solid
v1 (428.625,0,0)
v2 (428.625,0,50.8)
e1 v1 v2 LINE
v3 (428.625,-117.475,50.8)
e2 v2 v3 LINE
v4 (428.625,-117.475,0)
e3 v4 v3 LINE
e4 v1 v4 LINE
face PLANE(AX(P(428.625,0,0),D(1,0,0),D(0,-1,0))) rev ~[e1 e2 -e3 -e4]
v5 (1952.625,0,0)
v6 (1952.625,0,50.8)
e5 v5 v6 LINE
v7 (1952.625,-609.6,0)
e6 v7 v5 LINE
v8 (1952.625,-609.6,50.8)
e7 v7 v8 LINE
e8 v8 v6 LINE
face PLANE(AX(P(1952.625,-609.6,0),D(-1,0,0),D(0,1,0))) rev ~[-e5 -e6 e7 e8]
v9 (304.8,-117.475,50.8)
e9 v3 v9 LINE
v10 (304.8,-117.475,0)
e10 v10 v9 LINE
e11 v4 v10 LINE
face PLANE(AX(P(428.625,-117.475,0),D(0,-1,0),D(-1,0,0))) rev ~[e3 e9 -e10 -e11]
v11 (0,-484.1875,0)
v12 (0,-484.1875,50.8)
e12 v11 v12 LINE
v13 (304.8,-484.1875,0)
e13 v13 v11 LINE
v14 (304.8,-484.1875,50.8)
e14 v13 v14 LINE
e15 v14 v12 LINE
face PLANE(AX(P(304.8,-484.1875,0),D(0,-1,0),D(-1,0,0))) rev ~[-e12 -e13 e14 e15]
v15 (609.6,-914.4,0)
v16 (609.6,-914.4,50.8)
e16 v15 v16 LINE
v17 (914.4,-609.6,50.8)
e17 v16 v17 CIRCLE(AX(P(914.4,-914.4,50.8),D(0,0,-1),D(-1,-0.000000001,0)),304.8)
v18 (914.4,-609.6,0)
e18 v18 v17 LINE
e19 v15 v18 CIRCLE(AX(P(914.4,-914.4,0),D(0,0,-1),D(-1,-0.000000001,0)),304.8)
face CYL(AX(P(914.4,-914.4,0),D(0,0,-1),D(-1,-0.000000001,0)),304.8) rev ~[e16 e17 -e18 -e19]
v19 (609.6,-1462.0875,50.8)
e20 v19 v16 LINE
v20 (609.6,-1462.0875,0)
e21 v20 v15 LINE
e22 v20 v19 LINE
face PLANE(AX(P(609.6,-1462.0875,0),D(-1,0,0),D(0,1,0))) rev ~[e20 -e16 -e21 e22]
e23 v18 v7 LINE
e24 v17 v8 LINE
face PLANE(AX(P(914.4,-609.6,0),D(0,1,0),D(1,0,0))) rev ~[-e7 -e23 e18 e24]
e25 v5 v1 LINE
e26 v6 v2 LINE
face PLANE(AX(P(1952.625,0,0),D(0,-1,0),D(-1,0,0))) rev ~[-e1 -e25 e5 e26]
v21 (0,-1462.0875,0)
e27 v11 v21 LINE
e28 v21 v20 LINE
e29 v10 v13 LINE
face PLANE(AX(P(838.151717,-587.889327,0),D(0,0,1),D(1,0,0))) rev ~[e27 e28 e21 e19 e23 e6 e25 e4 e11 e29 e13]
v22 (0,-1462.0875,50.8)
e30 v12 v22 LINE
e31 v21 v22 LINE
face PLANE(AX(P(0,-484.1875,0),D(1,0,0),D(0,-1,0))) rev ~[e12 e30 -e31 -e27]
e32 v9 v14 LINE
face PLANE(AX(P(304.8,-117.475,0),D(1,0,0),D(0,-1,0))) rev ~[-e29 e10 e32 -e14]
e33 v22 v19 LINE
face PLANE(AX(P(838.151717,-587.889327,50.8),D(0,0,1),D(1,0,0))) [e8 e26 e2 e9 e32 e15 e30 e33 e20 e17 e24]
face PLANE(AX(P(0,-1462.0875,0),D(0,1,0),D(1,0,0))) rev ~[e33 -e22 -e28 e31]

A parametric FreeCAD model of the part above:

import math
import FreeCAD as App
import Part
import Sketcher
from FreeCAD import Vector
Q = App.Units.Quantity

doc = App.newDocument("Part")
body = doc.addObject("PartDesign::Body", "Body")

# Sketch on XY plane
sketch1 = body.newObject("Sketcher::SketchObject", "Sketch")
sketch1.AttachmentSupport = (doc.getObject("XY_Plane"), [""])
sketch1.MapMode = "FlatFace"
sketch1.addGeometry(Part.LineSegment(Vector(0, -484, 0), Vector(0, -1462, 0)), False)
sketch1.addGeometry(Part.LineSegment(Vector(0, -1462, 0), Vector(610, -1462, 0)), False)
sketch1.addGeometry(Part.LineSegment(Vector(610, -1462, 0), Vector(610, -914, 0)), False)
sketch1.addGeometry(Part.ArcOfCircle(Part.Circle(Vector(914, -914, 0), Vector(0, 0, 1), 305), math.radians(90), math.radians(180)), False)
sketch1.addGeometry(Part.LineSegment(Vector(914, -610, 0), Vector(1953, -610, 0)), False)
sketch1.addGeometry(Part.LineSegment(Vector(1953, -610, 0), Vector(1953, 0, 0)), False)
sketch1.addGeometry(Part.LineSegment(Vector(1953, 0, 0), Vector(429, 0, 0)), False)
sketch1.addGeometry(Part.LineSegment(Vector(429, 0, 0), Vector(429, -117, 0)), False)
sketch1.addGeometry(Part.LineSegment(Vector(429, -117, 0), Vector(305, -117, 0)), False)
sketch1.addGeometry(Part.LineSegment(Vector(305, -117, 0), Vector(305, -484, 0)), False)
sketch1.addGeometry(Part.LineSegment(Vector(305, -484, 0), Vector(0, -484, 0)), False)
sketch1.addConstraint(Sketcher.Constraint("Coincident", 0, 2, 1, 1))
sketch1.addConstraint(Sketcher.Constraint("Coincident", 1, 2, 2, 1))
sketch1.addConstraint(Sketcher.Constraint("Tangent", 2, 2, 3, 2))
sketch1.addConstraint(Sketcher.Constraint("Tangent", 3, 1, 4, 1))
sketch1.addConstraint(Sketcher.Constraint("Coincident", 4, 2, 5, 1))
sketch1.addConstraint(Sketcher.Constraint("Coincident", 5, 2, 6, 1))
sketch1.addConstraint(Sketcher.Constraint("Coincident", 6, 2, 7, 1))
sketch1.addConstraint(Sketcher.Constraint("Coincident", 7, 2, 8, 1))
sketch1.addConstraint(Sketcher.Constraint("Coincident", 8, 2, 9, 1))
sketch1.addConstraint(Sketcher.Constraint("Coincident", 9, 2, 10, 1))
sketch1.addConstraint(Sketcher.Constraint("Coincident", 10, 2, 0, 1))
sketch1.addConstraint(Sketcher.Constraint("Vertical", 0))
sketch1.addConstraint(Sketcher.Constraint("Horizontal", 1))
sketch1.addConstraint(Sketcher.Constraint("Vertical", 2))
sketch1.addConstraint(Sketcher.Constraint("Horizontal", 4))
sketch1.addConstraint(Sketcher.Constraint("Vertical", 5))
sketch1.addConstraint(Sketcher.Constraint("Horizontal", 6))
sketch1.addConstraint(Sketcher.Constraint("Vertical", 7))
sketch1.addConstraint(Sketcher.Constraint("Horizontal", 8))
sketch1.addConstraint(Sketcher.Constraint("Vertical", 9))
sketch1.addConstraint(Sketcher.Constraint("Horizontal", 10))
sketch1.addConstraint(Sketcher.Constraint("PointOnObject", 0, 2, -2))
sketch1.addConstraint(Sketcher.Constraint("PointOnObject", 5, 2, -1))
sketch1.addConstraint(Sketcher.Constraint("Equal", 1, 5))
sketch1.addConstraint(Sketcher.Constraint("Radius", 3, Q("12 in")))
sketch1.addConstraint(Sketcher.Constraint("DistanceX", 1, 1, 1, 2, Q("24 in")))
sketch1.addConstraint(Sketcher.Constraint("DistanceX", 6, 2, 6, 1, Q("60 in")))
sketch1.addConstraint(Sketcher.Constraint("DistanceX", 10, 2, 10, 1, Q("12 in")))
sketch1.addConstraint(Sketcher.Constraint("DistanceY", 0, 2, 0, 1, Q("38.5 in")))
sketch1.addConstraint(Sketcher.Constraint("DistanceX", 4, 1, 4, 2, Q("40.875 in")))
sketch1.addConstraint(Sketcher.Constraint("DistanceY", 2, 1, 2, 2, Q("21.5625 in")))
sketch1.addConstraint(Sketcher.Constraint("DistanceY", 7, 2, 7, 1, Q("4.625 in")))
pad1 = body.newObject("PartDesign::Pad", "Pad")
pad1.Profile = sketch1
pad1.Length = Q("2 in")

doc.recompute()
